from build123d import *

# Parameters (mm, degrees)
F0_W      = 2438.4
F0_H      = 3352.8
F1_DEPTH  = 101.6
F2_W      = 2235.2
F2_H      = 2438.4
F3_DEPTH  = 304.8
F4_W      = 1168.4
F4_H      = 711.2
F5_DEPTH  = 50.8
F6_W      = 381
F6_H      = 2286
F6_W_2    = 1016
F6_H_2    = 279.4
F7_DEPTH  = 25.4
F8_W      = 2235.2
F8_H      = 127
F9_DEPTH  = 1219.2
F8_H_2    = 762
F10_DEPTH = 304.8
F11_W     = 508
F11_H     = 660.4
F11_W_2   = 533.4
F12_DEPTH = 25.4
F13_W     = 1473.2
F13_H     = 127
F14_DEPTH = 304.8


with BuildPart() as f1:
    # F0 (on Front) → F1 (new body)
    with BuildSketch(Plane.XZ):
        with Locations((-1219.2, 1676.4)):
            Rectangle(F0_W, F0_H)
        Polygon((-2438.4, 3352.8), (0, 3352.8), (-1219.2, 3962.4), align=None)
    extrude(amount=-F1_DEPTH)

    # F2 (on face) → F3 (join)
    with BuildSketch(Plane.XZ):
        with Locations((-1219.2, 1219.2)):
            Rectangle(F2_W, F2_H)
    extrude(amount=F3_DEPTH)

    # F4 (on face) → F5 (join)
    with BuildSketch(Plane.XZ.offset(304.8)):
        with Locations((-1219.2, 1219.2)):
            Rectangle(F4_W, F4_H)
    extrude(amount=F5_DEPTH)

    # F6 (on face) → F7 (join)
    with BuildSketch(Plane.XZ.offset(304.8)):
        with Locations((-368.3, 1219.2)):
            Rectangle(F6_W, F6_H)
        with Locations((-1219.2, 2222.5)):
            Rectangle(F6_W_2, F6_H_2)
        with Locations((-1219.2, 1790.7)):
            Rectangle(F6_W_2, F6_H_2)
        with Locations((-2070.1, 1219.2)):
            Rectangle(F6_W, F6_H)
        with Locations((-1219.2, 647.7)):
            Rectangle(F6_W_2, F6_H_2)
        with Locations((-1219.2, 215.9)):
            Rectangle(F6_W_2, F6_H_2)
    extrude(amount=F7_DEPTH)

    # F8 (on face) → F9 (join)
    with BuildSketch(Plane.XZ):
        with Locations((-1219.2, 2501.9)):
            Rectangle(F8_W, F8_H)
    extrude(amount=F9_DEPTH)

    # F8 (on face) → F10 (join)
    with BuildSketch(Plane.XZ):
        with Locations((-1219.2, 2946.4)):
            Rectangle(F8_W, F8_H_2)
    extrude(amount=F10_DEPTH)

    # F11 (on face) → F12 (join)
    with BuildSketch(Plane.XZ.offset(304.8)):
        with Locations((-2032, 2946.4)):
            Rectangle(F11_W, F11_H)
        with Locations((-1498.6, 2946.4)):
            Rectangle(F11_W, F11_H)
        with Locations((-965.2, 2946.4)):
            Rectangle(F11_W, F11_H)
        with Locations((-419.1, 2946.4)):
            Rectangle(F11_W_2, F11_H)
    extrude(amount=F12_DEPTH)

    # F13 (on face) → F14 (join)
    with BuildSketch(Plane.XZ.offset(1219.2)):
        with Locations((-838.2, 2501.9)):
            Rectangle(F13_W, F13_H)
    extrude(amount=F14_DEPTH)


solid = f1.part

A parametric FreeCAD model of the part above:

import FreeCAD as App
import Part
import Sketcher
from FreeCAD import Vector
Q = App.Units.Quantity


def add_polygon(sketch, points):
    """Adds a closed chain of lines whose ends are joined by coincident constraints."""
    first, n = sketch.GeometryCount, len(points)
    for a, b in zip(points, points[1:] + points[:1]):
        sketch.addGeometry(Part.LineSegment(App.Vector(*a, 0), App.Vector(*b, 0)), False)
    for i in range(n):
        sketch.addConstraint(Sketcher.Constraint("Coincident", first + i, 2, first + (i + 1) % n, 1))

doc = App.newDocument("Part")
body = doc.addObject("PartDesign::Body", "Body")

# Sketch on XZ plane
sketch1 = doc.addObject("Sketcher::SketchObject", "Sketch")
body.addObject(sketch1)
sketch1.AttachmentSupport = (doc.XZ_Plane, [""])
sketch1.MapMode = "FlatFace"
add_polygon(sketch1, [(-2438, 3353), (-2438, 0), (0, 0), (0, 3353), (-1219, 3962)])  # lines 0-4
sketch1.addConstraint([
    Sketcher.Constraint("Vertical", 0),
    Sketcher.Constraint("Horizontal", 1),
    Sketcher.Constraint("Vertical", 2),
    Sketcher.Constraint("Coincident", 1, 2, -1, 1),
    Sketcher.Constraint("Horizontal", 2, 2, 4, 2),
    Sketcher.Constraint("Equal", 3, 4),
    Sketcher.Constraint("DistanceX", 1, 1, 1, 2, Q("96 in")),
    Sketcher.Constraint("DistanceY", 0, 2, 0, 1, Q("132 in")),
    Sketcher.Constraint("DistanceY", -1, 1, 3, 2, Q("156 in")),
])
pad1 = doc.addObject("PartDesign::Pad", "Pad")
body.addObject(pad1)
pad1.Profile = sketch1
pad1.Length = Q("4 in")
pad1.Reversed = True

# Sketch on XZ plane
sketch2 = doc.addObject("Sketcher::SketchObject", "Sketch001")
body.addObject(sketch2)
sketch2.AttachmentSupport = (doc.XZ_Plane, [""])
sketch2.MapMode = "FlatFace"
add_polygon(sketch2, [(-2337, 2438), (-2337, 0), (-102, 0), (-102, 2438)])  # lines 0-3
sketch2.addConstraint([
    Sketcher.Constraint("Vertical", 0),
    Sketcher.Constraint("Horizontal", 1),
    Sketcher.Constraint("Vertical", 2),
    Sketcher.Constraint("Horizontal", 3),
    Sketcher.Constraint("PointOnObject", 0, 2, -1),
    Sketcher.Constraint("DistanceX", 1, 1, 1, 2, Q("88 in")),
    Sketcher.Constraint("DistanceY", 0, 2, 0, 1, Q("96 in")),
    Sketcher.Constraint("DistanceX", 0, 2, -1, 1, Q("92 in")),
])
pad2 = doc.addObject("PartDesign::Pad", "Pad001")
body.addObject(pad2)
pad2.Profile = sketch2
pad2.Length = Q("12 in")

# Sketch on XZ plane
sketch3 = doc.addObject("Sketcher::SketchObject", "Sketch002")
body.addObject(sketch3)
sketch3.AttachmentSupport = (doc.XZ_Plane, [""])
sketch3.MapMode = "FlatFace"
sketch3.AttachmentOffset = App.Placement(Vector(0, 0, 12 * 25.4), App.Rotation())
add_polygon(sketch3, [(-1803, 1575), (-1803, 864), (-635, 864), (-635, 1575)])  # lines 0-3
sketch3.addConstraint([
    Sketcher.Constraint("Vertical", 0),
    Sketcher.Constraint("Horizontal", 1),
    Sketcher.Constraint("Vertical", 2),
    Sketcher.Constraint("Horizontal", 3),
    Sketcher.Constraint("DistanceX", 1, 1, 1, 2, Q("46 in")),
    Sketcher.Constraint("DistanceY", 0, 2, 0, 1, Q("28 in")),
    Sketcher.Constraint("DistanceX", 0, 2, -1, 1, Q("71 in")),
    Sketcher.Constraint("DistanceY", -1, 1, 0, 2, Q("34 in")),
])
pad3 = doc.addObject("PartDesign::Pad", "Pad002")
body.addObject(pad3)
pad3.Profile = sketch3
pad3.Length = Q("2 in")

# Sketch on XZ plane
sketch4 = doc.addObject("Sketcher::SketchObject", "Sketch003")
body.addObject(sketch4)
sketch4.AttachmentSupport = (doc.XZ_Plane, [""])
sketch4.MapMode = "FlatFace"
sketch4.AttachmentOffset = App.Placement(Vector(0, 0, 12 * 25.4), App.Rotation())
add_polygon(sketch4, [(-559, 2362), (-559, 76), (-178, 76), (-178, 2362)])  # lines 0-3
add_polygon(sketch4, [(-1727, 2362), (-1727, 2083), (-711, 2083), (-711, 2362)])  # lines 4-7
add_polygon(sketch4, [(-1727, 1930), (-1727, 1651), (-711, 1651), (-711, 1930)])  # lines 8-11
add_polygon(sketch4, [(-2261, 2362), (-2261, 76), (-1880, 76), (-1880, 2362)])  # lines 12-15
add_polygon(sketch4, [(-1727, 787), (-1727, 508), (-711, 508), (-711, 787)])  # lines 16-19
add_polygon(sketch4, [(-1727, 356), (-1727, 76), (-711, 76), (-711, 356)])  # lines 20-23
sketch4.addConstraint([
    Sketcher.Constraint("Vertical", 0),
    Sketcher.Constraint("Horizontal", 1),
    Sketcher.Constraint("Vertical", 2),
    Sketcher.Constraint("Horizontal", 3),
    Sketcher.Constraint("Vertical", 4),
    Sketcher.Constraint("Horizontal", 5),
    Sketcher.Constraint("Vertical", 6),
    Sketcher.Constraint("Horizontal", 7),
    Sketcher.Constraint("Vertical", 8),
    Sketcher.Constraint("Horizontal", 9),
    Sketcher.Constraint("Vertical", 10),
    Sketcher.Constraint("Horizontal", 11),
    Sketcher.Constraint("Vertical", 12),
    Sketcher.Constraint("Horizontal", 13),
    Sketcher.Constraint("Vertical", 14),
    Sketcher.Constraint("Horizontal", 15),
    Sketcher.Constraint("Vertical", 16),
    Sketcher.Constraint("Horizontal", 17),
    Sketcher.Constraint("Vertical", 18),
    Sketcher.Constraint("Horizontal", 19),
    Sketcher.Constraint("Vertical", 20),
    Sketcher.Constraint("Horizontal", 21),
    Sketcher.Constraint("Vertical", 22),
    Sketcher.Constraint("Horizontal", 23),
    Sketcher.Constraint("Horizontal", 3, 2, 6, 2),
    Sketcher.Constraint("Horizontal", 1, 2, 12, 2),
    Sketcher.Constraint("Horizontal", 7, 2, 14, 2),
    Sketcher.Constraint("Horizontal", 13, 2, 20, 2),
    Sketcher.Constraint("Vertical", 7, 2, 8, 2),
    Sketcher.Constraint("Vertical", 6, 2, 9, 2),
    Sketcher.Constraint("Vertical", 11, 2, 16, 2),
    Sketcher.Constraint("Vertical", 10, 2, 17, 2),
    Sketcher.Constraint("Vertical", 19, 2, 20, 2),
    Sketcher.Constraint("Vertical", 18, 2, 21, 2),
    Sketcher.Constraint("Equal", 3, 13),
    Sketcher.Constraint("Equal", 6, 8),
    Sketcher.Constraint("Equal", 10, 16),
    Sketcher.Constraint("Equal", 18, 20),
    Sketcher.Constraint("DistanceX", 1, 1, 1, 2, Q("15 in")),
    Sketcher.Constraint("DistanceX", 5, 1, 5, 2, Q("40 in")),
    Sketcher.Constraint("DistanceY", 0, 2, 0, 1, Q("90 in")),
    Sketcher.Constraint("DistanceY", 4, 2, 4, 1, Q("11 in")),
    Sketcher.Constraint("DistanceX", 0, 2, -1, 1, Q("22 in")),
    Sketcher.Constraint("DistanceY", -1, 1, 0, 2, Q("3 in")),
    Sketcher.Constraint("DistanceX", 4, 2, -1, 1, Q("68 in")),
    Sketcher.Constraint("DistanceY", -1, 1, 8, 2, Q("65 in")),
    Sketcher.Constraint("DistanceX", 12, 2, -1, 1, Q("89 in")),
    Sketcher.Constraint("DistanceY", -1, 1, 16, 2, Q("20 in")),
])
pad4 = doc.addObject("PartDesign::Pad", "Pad003")
body.addObject(pad4)
pad4.Profile = sketch4
pad4.Length = Q("1 in")

# Sketch on XZ plane
sketch5 = doc.addObject("Sketcher::SketchObject", "Sketch004")
body.addObject(sketch5)
sketch5.AttachmentSupport = (doc.XZ_Plane, [""])
sketch5.MapMode = "FlatFace"
add_polygon(sketch5, [(-2337, 2565), (-2337, 2438), (-102, 2438), (-102, 2565)])  # lines 0-3
sketch5.addConstraint([
    Sketcher.Constraint("Vertical", 0),
    Sketcher.Constraint("Horizontal", 1),
    Sketcher.Constraint("Vertical", 2),
    Sketcher.Constraint("Horizontal", 3),
    Sketcher.Constraint("DistanceX", 1, 1, 1, 2, Q("88 in")),
    Sketcher.Constraint("DistanceY", 0, 2, 0, 1, Q("5 in")),
    Sketcher.Constraint("DistanceX", 0, 2, -1, 1, Q("92 in")),
    Sketcher.Constraint("DistanceY", -1, 1, 0, 2, Q("96 in")),
])
pad5 = doc.addObject("PartDesign::Pad", "Pad004")
body.addObject(pad5)
pad5.Profile = sketch5
pad5.Length = Q("48 in")

# Sketch on XZ plane
sketch6 = doc.addObject("Sketcher::SketchObject", "Sketch005")
body.addObject(sketch6)
sketch6.AttachmentSupport = (doc.XZ_Plane, [""])
sketch6.MapMode = "FlatFace"
add_polygon(sketch6, [(-2337, 3327), (-2337, 2565), (-102, 2565), (-102, 3327)])  # lines 0-3
sketch6.addConstraint([
    Sketcher.Constraint("Vertical", 0),
    Sketcher.Constraint("Horizontal", 1),
    Sketcher.Constraint("Vertical", 2),
    Sketcher.Constraint("Horizontal", 3),
    Sketcher.Constraint("DistanceX", 1, 1, 1, 2, Q("88 in")),
    Sketcher.Constraint("DistanceY", 0, 2, 0, 1, Q("30 in")),
    Sketcher.Constraint("DistanceX", 0, 2, -1, 1, Q("92 in")),
    Sketcher.Constraint("DistanceY", -1, 1, 0, 2, Q("101 in")),
])
pad6 = doc.addObject("PartDesign::Pad", "Pad005")
body.addObject(pad6)
pad6.Profile = sketch6
pad6.Length = Q("12 in")

# Sketch on XZ plane
sketch7 = doc.addObject("Sketcher::SketchObject", "Sketch006")
body.addObject(sketch7)
sketch7.AttachmentSupport = (doc.XZ_Plane, [""])
sketch7.MapMode = "FlatFace"
sketch7.AttachmentOffset = App.Placement(Vector(0, 0, 12 * 25.4), App.Rotation())
add_polygon(sketch7, [(-2286, 3277), (-2286, 2616), (-1778, 2616), (-1778, 3277)])  # lines 0-3
add_polygon(sketch7, [(-1753, 3277), (-1753, 2616), (-1245, 2616), (-1245, 3277)])  # lines 4-7
add_polygon(sketch7, [(-1219, 3277), (-1219, 2616), (-711, 2616), (-711, 3277)])  # lines 8-11
add_polygon(sketch7, [(-686, 3277), (-686, 2616), (-152, 2616), (-152, 3277)])  # lines 12-15
sketch7.addConstraint([
    Sketcher.Constraint("Vertical", 0),
    Sketcher.Constraint("Horizontal", 1),
    Sketcher.Constraint("Vertical", 2),
    Sketcher.Constraint("Horizontal", 3),
    Sketcher.Constraint("Vertical", 4),
    Sketcher.Constraint("Horizontal", 5),
    Sketcher.Constraint("Vertical", 6),
    Sketcher.Constraint("Horizontal", 7),
    Sketcher.Constraint("Vertical", 8),
    Sketcher.Constraint("Horizontal", 9),
    Sketcher.Constraint("Vertical", 10),
    Sketcher.Constraint("Horizontal", 11),
    Sketcher.Constraint("Vertical", 12),
    Sketcher.Constraint("Horizontal", 13),
    Sketcher.Constraint("Vertical", 14),
    Sketcher.Constraint("Horizontal", 15),
    Sketcher.Constraint("Horizontal", 1, 2, 4, 2),
    Sketcher.Constraint("Horizontal", 3, 2, 6, 2),
    Sketcher.Constraint("Horizontal", 5, 2, 8, 2),
    Sketcher.Constraint("Horizontal", 7, 2, 10, 2),
    Sketcher.Constraint("Horizontal", 9, 2, 12, 2),
    Sketcher.Constraint("Horizontal", 11, 2, 14, 2),
    Sketcher.Constraint("Equal", 3, 5),
    Sketcher.Constraint("Equal", 7, 9),
    Sketcher.Constraint("DistanceX", 1, 1, 1, 2, Q("20 in")),
    Sketcher.Constraint("DistanceX", 13, 1, 13, 2, Q("21 in")),
    Sketcher.Constraint("DistanceY", 0, 2, 0, 1, Q("26 in")),
    Sketcher.Constraint("DistanceX", 0, 2, -1, 1, Q("90 in")),
    Sketcher.Constraint("DistanceY", -1, 1, 0, 2, Q("103 in")),
    Sketcher.Constraint("DistanceX", 4, 2, -1, 1, Q("69 in")),
    Sketcher.Constraint("DistanceX", 8, 2, -1, 1, Q("48 in")),
    Sketcher.Constraint("DistanceX", 12, 2, -1, 1, Q("27 in")),
])
pad7 = doc.addObject("PartDesign::Pad", "Pad006")
body.addObject(pad7)
pad7.Profile = sketch7
pad7.Length = Q("1 in")

# Sketch on XZ plane
sketch8 = doc.addObject("Sketcher::SketchObject", "Sketch007")
body.addObject(sketch8)
sketch8.AttachmentSupport = (doc.XZ_Plane, [""])
sketch8.MapMode = "FlatFace"
sketch8.AttachmentOffset = App.Placement(Vector(0, 0, 48 * 25.4), App.Rotation())
add_polygon(sketch8, [(-1575, 2565), (-1575, 2438), (-102, 2438), (-102, 2565)])  # lines 0-3
sketch8.addConstraint([
    Sketcher.Constraint("Vertical", 0),
    Sketcher.Constraint("Horizontal", 1),
    Sketcher.Constraint("Vertical", 2),
    Sketcher.Constraint("Horizontal", 3),
    Sketcher.Constraint("DistanceX", 1, 1, 1, 2, Q("58 in")),
    Sketcher.Constraint("DistanceY", 0, 2, 0, 1, Q("5 in")),
    Sketcher.Constraint("DistanceX", 0, 2, -1, 1, Q("62 in")),
    Sketcher.Constraint("DistanceY", -1, 1, 0, 2, Q("96 in")),
])
pad8 = doc.addObject("PartDesign::Pad", "Pad007")
body.addObject(pad8)
pad8.Profile = sketch8
pad8.Length = Q("12 in")

doc.recompute()
